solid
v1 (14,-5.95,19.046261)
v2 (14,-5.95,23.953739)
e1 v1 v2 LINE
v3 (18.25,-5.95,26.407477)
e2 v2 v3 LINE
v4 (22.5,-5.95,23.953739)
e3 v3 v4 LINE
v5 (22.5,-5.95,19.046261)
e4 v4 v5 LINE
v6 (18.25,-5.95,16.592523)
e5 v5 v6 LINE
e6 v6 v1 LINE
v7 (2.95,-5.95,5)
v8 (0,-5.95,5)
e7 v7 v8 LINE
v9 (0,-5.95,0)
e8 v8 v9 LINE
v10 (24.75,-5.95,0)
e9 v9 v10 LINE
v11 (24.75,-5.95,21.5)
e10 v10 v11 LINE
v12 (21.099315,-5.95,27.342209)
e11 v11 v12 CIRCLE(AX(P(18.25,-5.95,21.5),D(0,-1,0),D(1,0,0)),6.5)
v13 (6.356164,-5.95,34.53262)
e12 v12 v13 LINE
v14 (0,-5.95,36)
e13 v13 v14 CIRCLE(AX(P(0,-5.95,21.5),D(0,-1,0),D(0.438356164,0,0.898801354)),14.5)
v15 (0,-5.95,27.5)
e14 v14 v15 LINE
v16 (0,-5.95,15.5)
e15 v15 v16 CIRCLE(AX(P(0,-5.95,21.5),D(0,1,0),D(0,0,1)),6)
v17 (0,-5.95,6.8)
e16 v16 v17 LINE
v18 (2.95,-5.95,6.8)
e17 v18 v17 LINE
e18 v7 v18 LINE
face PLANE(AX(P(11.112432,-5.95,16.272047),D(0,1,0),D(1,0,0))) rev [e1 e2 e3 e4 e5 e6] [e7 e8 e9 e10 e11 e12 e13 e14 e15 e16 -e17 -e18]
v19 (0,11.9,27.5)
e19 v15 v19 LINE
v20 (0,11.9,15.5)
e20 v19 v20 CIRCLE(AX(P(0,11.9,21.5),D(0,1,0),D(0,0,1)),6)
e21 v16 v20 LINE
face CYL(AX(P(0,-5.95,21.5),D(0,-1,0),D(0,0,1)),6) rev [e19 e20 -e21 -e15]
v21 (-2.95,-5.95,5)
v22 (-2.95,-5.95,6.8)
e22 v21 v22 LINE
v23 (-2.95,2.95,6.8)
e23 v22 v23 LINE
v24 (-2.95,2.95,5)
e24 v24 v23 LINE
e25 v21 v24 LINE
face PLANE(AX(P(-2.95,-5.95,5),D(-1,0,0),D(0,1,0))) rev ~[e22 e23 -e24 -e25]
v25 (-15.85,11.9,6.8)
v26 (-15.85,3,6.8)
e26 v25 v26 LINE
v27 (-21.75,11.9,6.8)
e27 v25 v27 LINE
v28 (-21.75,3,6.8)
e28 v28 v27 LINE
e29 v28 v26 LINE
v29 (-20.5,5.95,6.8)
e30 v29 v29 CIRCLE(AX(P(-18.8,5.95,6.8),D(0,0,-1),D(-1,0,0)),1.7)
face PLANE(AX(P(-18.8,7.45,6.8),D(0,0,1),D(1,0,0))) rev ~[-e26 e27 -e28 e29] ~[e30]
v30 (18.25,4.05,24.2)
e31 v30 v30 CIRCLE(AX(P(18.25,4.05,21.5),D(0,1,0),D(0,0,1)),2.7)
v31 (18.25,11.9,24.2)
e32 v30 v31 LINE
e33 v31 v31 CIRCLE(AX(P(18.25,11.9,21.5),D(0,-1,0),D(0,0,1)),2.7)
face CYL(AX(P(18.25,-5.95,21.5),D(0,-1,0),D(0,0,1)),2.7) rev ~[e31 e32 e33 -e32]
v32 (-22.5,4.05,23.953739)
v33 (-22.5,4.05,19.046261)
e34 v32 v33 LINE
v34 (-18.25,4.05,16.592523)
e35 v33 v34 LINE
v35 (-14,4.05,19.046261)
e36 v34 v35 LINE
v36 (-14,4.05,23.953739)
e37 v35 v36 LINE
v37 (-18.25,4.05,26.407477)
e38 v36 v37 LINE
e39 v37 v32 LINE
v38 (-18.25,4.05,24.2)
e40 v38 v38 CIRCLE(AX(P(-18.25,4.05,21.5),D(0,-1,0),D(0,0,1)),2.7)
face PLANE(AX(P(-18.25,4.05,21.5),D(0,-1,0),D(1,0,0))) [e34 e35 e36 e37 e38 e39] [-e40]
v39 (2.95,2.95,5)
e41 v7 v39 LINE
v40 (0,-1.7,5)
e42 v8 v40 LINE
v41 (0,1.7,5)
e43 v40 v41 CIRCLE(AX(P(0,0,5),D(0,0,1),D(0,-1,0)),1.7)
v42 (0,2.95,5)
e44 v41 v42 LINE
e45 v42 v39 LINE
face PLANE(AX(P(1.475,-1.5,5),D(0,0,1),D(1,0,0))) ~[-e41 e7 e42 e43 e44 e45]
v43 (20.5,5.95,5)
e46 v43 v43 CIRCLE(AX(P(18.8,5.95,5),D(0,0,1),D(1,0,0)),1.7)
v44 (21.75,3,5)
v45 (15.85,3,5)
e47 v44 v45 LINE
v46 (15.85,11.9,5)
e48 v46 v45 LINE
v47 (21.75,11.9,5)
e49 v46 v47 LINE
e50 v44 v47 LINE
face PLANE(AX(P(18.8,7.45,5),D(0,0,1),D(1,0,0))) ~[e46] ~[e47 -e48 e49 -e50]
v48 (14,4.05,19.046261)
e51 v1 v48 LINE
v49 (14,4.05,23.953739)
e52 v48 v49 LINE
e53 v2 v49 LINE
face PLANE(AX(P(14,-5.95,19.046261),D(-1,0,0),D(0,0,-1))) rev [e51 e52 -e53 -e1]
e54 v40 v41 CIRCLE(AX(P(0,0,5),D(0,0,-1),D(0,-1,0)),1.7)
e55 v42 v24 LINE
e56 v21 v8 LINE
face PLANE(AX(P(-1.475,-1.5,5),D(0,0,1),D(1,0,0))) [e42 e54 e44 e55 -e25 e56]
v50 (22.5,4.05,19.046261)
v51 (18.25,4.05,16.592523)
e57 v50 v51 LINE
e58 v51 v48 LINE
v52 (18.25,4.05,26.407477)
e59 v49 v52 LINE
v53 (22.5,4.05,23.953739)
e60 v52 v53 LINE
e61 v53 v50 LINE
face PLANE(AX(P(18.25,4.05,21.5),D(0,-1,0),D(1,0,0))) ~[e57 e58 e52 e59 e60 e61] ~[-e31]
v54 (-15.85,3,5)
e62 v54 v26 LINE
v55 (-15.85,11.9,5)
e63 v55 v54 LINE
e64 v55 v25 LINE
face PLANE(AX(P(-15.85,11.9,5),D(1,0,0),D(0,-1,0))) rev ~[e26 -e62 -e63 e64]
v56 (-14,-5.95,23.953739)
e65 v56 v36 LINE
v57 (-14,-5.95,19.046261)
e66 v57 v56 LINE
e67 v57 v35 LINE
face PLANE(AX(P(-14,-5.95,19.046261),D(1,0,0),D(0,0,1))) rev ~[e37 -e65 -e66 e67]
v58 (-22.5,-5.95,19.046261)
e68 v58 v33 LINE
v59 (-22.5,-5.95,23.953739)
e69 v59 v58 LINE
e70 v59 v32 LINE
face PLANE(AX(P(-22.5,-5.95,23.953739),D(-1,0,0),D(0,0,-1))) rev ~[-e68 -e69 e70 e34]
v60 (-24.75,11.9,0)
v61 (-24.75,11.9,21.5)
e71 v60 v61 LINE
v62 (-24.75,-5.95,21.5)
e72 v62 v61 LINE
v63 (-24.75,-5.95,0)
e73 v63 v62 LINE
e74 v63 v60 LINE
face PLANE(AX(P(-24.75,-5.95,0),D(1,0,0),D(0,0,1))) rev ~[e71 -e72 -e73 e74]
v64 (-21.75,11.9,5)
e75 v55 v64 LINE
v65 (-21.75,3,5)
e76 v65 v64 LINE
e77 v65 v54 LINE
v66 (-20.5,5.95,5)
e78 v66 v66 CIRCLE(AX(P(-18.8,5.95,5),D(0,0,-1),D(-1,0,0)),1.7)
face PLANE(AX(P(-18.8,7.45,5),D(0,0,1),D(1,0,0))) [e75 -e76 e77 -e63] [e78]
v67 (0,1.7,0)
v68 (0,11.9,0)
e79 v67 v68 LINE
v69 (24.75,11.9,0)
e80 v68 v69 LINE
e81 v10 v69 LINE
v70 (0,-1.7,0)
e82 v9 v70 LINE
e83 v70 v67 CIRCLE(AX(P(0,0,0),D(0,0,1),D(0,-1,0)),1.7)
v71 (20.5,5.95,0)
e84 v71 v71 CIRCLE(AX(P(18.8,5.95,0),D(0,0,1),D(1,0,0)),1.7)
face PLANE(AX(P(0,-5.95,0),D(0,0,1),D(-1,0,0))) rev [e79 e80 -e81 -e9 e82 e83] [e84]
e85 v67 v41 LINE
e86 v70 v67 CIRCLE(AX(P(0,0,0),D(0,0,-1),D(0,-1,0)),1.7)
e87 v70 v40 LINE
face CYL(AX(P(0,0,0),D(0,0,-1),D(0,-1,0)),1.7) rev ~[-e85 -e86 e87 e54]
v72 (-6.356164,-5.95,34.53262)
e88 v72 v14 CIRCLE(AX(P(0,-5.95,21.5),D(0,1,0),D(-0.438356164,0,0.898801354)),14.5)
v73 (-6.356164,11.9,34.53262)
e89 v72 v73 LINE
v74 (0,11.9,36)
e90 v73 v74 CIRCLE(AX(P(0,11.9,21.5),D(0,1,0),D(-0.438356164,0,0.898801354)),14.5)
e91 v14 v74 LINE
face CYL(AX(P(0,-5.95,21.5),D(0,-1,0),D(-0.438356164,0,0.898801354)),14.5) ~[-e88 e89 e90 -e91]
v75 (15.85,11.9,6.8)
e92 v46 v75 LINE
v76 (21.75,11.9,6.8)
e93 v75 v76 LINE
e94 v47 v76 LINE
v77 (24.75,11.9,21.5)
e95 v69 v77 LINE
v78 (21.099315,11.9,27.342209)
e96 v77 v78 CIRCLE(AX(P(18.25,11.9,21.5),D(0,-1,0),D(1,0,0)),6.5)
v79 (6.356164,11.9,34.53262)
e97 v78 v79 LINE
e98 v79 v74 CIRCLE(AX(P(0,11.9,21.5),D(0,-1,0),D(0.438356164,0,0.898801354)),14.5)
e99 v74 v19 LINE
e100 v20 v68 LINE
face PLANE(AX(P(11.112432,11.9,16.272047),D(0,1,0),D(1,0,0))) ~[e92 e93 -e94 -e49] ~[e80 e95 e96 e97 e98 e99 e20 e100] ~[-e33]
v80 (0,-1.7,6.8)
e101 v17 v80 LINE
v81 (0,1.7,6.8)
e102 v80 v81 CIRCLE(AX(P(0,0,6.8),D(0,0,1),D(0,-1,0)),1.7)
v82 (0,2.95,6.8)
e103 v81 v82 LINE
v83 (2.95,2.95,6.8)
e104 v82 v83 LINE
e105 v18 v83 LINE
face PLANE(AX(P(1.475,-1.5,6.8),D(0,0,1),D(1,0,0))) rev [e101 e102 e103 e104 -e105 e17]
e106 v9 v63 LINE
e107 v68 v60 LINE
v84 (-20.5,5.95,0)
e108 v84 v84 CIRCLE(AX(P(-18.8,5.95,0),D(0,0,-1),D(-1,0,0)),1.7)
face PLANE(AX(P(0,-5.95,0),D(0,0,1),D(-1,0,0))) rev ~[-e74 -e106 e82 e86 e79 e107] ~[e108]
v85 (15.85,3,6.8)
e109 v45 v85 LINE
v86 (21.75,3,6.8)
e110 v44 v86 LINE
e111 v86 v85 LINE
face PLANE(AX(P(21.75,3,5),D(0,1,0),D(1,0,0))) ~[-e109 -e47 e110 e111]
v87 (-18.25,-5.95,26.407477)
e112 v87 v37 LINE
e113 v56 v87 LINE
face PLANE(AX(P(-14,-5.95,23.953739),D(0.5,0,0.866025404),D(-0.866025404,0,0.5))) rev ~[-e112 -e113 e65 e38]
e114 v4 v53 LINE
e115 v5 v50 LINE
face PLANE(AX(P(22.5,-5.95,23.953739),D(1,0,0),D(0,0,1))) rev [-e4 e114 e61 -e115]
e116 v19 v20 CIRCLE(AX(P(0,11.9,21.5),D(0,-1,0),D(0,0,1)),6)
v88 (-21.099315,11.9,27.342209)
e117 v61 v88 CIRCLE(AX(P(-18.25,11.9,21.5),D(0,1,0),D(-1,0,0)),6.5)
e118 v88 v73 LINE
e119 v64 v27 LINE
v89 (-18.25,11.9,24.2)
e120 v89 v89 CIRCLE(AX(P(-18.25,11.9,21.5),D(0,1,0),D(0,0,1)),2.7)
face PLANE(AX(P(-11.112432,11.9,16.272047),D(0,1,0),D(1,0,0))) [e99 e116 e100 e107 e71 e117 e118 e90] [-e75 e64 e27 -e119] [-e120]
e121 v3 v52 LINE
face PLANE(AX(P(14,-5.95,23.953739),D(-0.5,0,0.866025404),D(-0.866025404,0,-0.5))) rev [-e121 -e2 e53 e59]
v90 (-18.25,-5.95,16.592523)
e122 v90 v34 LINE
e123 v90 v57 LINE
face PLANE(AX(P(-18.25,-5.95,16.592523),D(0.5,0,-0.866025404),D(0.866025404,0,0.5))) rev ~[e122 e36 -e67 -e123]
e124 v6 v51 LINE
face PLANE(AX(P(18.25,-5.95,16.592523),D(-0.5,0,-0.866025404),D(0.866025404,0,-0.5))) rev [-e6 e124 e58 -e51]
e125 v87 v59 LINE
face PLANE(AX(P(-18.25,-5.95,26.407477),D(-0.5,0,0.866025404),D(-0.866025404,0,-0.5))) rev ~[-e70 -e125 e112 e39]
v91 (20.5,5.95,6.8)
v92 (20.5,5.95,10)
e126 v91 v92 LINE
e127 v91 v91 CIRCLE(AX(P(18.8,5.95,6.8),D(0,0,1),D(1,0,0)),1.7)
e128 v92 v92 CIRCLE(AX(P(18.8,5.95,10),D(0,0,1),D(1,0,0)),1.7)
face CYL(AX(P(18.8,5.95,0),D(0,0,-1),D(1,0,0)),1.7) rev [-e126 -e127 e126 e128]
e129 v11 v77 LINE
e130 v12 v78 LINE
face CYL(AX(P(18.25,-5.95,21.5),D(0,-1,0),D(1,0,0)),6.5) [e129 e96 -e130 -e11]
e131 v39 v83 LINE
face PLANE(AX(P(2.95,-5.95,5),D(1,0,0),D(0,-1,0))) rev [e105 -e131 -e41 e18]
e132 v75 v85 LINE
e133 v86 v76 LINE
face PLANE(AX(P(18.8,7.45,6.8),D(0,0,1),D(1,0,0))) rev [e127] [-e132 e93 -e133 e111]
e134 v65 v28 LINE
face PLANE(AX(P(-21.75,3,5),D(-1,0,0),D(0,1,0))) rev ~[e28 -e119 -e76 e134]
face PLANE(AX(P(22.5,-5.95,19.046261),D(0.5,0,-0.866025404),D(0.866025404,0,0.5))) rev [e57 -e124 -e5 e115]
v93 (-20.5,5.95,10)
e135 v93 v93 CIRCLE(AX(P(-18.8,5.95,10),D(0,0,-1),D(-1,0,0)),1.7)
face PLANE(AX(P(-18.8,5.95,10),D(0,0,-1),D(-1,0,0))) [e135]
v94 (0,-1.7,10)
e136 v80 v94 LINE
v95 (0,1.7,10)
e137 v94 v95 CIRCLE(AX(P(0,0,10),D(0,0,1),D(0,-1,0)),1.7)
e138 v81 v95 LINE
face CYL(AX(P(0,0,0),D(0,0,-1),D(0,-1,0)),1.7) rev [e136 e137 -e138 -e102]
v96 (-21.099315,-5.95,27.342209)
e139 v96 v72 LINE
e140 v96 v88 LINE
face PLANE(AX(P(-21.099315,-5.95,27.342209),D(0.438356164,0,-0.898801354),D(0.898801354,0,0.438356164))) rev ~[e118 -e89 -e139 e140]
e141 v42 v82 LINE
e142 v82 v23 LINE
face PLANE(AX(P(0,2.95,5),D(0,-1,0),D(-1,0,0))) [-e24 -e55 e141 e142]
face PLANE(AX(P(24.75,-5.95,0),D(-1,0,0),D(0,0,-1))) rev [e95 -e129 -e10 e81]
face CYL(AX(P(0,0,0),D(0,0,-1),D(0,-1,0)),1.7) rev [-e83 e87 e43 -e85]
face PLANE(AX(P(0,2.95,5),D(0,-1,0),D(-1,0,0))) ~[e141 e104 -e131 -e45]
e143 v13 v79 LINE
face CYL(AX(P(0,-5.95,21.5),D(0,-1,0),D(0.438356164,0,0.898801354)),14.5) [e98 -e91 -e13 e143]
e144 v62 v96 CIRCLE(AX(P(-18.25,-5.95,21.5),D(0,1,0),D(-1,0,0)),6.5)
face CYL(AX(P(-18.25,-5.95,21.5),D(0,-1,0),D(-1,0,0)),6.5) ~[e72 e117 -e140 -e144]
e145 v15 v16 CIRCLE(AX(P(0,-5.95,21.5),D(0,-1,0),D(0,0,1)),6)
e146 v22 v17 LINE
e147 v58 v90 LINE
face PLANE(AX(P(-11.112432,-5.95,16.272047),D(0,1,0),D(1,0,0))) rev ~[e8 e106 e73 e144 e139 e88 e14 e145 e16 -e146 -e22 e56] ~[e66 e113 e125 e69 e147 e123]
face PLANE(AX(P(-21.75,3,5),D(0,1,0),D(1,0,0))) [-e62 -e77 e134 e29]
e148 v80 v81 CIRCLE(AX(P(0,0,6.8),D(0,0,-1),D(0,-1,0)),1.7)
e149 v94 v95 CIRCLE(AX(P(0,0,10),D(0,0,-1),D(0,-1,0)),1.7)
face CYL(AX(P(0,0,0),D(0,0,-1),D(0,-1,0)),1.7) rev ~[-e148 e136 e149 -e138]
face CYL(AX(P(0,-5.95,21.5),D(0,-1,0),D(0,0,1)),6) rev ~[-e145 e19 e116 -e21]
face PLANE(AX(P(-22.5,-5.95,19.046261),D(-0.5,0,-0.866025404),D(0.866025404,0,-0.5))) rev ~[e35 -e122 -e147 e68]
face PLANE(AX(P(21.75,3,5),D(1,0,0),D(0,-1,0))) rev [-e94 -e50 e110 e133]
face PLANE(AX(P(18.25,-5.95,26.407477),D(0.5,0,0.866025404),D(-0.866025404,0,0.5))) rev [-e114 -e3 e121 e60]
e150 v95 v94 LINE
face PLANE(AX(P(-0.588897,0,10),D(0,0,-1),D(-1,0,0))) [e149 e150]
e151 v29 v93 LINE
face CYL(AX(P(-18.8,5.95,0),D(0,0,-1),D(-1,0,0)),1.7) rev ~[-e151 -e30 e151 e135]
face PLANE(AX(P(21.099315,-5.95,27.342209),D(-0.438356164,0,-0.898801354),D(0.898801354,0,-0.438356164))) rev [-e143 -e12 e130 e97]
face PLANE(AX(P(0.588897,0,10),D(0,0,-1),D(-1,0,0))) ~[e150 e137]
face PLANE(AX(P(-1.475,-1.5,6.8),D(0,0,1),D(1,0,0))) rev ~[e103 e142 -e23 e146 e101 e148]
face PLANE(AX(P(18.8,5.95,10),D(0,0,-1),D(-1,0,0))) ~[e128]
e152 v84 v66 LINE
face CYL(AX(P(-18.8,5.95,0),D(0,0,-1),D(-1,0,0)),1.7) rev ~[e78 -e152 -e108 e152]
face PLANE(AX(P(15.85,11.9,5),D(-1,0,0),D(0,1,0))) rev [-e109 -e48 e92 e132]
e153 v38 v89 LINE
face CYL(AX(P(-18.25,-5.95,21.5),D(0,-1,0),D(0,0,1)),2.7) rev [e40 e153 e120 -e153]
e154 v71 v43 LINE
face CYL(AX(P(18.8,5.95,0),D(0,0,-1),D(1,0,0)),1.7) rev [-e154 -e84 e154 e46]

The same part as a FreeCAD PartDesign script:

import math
import FreeCAD as App
import Part
import Sketcher

V = App.Vector
Q = App.Units.Quantity

doc = App.newDocument("Part")
body = doc.addObject("PartDesign::Body", "Body")

# Sketch on XZ plane
sketch1 = body.newObject("Sketcher::SketchObject", "Sketch")
sketch1.AttachmentSupport = (doc.getObject("XZ_Plane"), [""])
sketch1.MapMode = "FlatFace"
sketch1.addGeometry([
    Part.LineSegment(V(-24.8, 0, 0), V(-24.8, 21.5, 0)),  # 0
    Part.ArcOfCircle(Part.Circle(V(-18.3, 21.5, 0), V(0, 0, 1), 6.5), math.radians(116), math.radians(180)),  # 1
    Part.LineSegment(V(-21.1, 27.3, 0), V(-6.4, 34.5, 0)),  # 2
    Part.ArcOfCircle(Part.Circle(V(0, 21.5, 0), V(0, 0, 1), 14.5), math.radians(90), math.radians(116)),  # 3
    Part.LineSegment(V(0, 36, 0), V(0, 27.5, 0)),  # 4
    Part.ArcOfCircle(Part.Circle(V(0, 21.5, 0), V(0, 0, 1), 6), math.radians(90), math.radians(270)),  # 5
    Part.LineSegment(V(0, 15.5, 0), V(0, 0, 0)),  # 6
    Part.LineSegment(V(0, 0, 0), V(-24.8, 0, 0)),  # 7
    Part.Circle(V(-18.2, 21.5, 0), V(0, 0, 1), 2.7),  # 8
], False)
sketch1.addConstraint([
    Sketcher.Constraint("Tangent", 0, 2, 1, 2),
    Sketcher.Constraint("Tangent", 1, 1, 2, 1),
    Sketcher.Constraint("Tangent", 2, 2, 3, 2),
    Sketcher.Constraint("Coincident", 3, 1, 4, 1),
    Sketcher.Constraint("Coincident", 4, 2, 5, 1),
    Sketcher.Constraint("Coincident", 5, 2, 6, 1),
    Sketcher.Constraint("Coincident", 6, 2, 7, 1),
    Sketcher.Constraint("Coincident", 7, 2, 0, 1),
    Sketcher.Constraint("Vertical", 0),
    Sketcher.Constraint("Vertical", 4),
    Sketcher.Constraint("Vertical", 6),
    Sketcher.Constraint("Horizontal", 7),
    Sketcher.Constraint("Coincident", 6, 2, -1, 1),
    Sketcher.Constraint("Coincident", 5, 3, 3, 3),
    Sketcher.Constraint("Coincident", 8, 3, 1, 3),
    Sketcher.Constraint("PointOnObject", 3, 3, -2),
    Sketcher.Constraint("PointOnObject", 3, 1, -2),
    Sketcher.Constraint("Horizontal", 1, 3, 3, 3),
    Sketcher.Constraint("Radius", 5, 6.0),
    Sketcher.Constraint("Diameter", 8, 5.4),
    Sketcher.Constraint("Radius", 1, 6.5),
    Sketcher.Constraint("Radius", 3, 14.5),
    Sketcher.Constraint("DistanceY", 0, 1, 0, 2, 21.5),
    Sketcher.Constraint("DistanceX", 7, 2, 7, 1, 24.75),
])
pad1 = body.newObject("PartDesign::Pad", "Pad")
pad1.Profile = sketch1
pad1.Type = "TwoLengths"
pad1.Length = 11.9
pad1.Length2 = 5.95
pad1.Reversed = True

# Sketch on XY plane
sketch2 = body.newObject("Sketcher::SketchObject", "Sketch001")
sketch2.AttachmentSupport = (doc.getObject("XY_Plane"), [""])
sketch2.MapMode = "FlatFace"
sketch2.addGeometry([
    Part.Circle(V(-18.8, 6, 0), V(0, 0, 1), 1.7),
    Part.LineSegment(V(0, 1.7, 0), V(0, -1.7, 0)),
    Part.ArcOfCircle(Part.Circle(V(0, 0, 0), V(0, 0, 1), 1.7), math.radians(90), math.radians(270)),
], False)
sketch2.addConstraint([
    Sketcher.Constraint("Coincident", 1, 1, 2, 1),
    Sketcher.Constraint("Coincident", 2, 2, 1, 2),
    Sketcher.Constraint("Vertical", 1),
    Sketcher.Constraint("Coincident", 2, 3, -1, 1),
    Sketcher.Constraint("Equal", 0, 2),
    Sketcher.Constraint("PointOnObject", 1, 1, -2),
    Sketcher.Constraint("Diameter", 0, 3.4),
    Sketcher.Constraint("DistanceX", 0, 3, -1, 1, 18.8),
    Sketcher.Constraint("DistanceY", -1, 1, 0, 3, 5.95),
])
pocket1 = body.newObject("PartDesign::Pocket", "Pocket")
pocket1.Profile = sketch2
pocket1.Length = 10
pocket1.Reversed = True

# Sketch on XY plane
sketch3 = body.newObject("Sketcher::SketchObject", "Sketch002")
sketch3.AttachmentSupport = (doc.getObject("XY_Plane"), [""])
sketch3.MapMode = "FlatFace"
sketch3.AttachmentOffset = App.Placement(V(0, 0, 5), App.Rotation())
sketch3.addGeometry([
    Part.LineSegment(V(-15.8, 11.9, 0), V(-15.8, 3, 0)),  # 0
    Part.LineSegment(V(-15.8, 3, 0), V(-21.8, 3, 0)),  # 1
    Part.LineSegment(V(-21.8, 3, 0), V(-21.8, 11.9, 0)),  # 2
    Part.LineSegment(V(-21.8, 11.9, 0), V(-15.8, 11.9, 0)),  # 3
    Part.LineSegment(V(-3, 3, 0), V(0, 3, 0)),  # 4
    Part.LineSegment(V(0, 3, 0), V(0, -6, 0)),  # 5
    Part.LineSegment(V(0, -6, 0), V(-3, -6, 0)),  # 6
    Part.LineSegment(V(-3, -6, 0), V(-3, 3, 0)),  # 7
], False)
sketch3.addConstraint([
    Sketcher.Constraint("Coincident", 0, 2, 1, 1),
    Sketcher.Constraint("Coincident", 1, 2, 2, 1),
    Sketcher.Constraint("Coincident", 2, 2, 3, 1),
    Sketcher.Constraint("Coincident", 3, 2, 0, 1),
    Sketcher.Constraint("Coincident", 4, 2, 5, 1),
    Sketcher.Constraint("Coincident", 5, 2, 6, 1),
    Sketcher.Constraint("Coincident", 6, 2, 7, 1),
    Sketcher.Constraint("Coincident", 7, 2, 4, 1),
    Sketcher.Constraint("Vertical", 0),
    Sketcher.Constraint("Horizontal", 1),
    Sketcher.Constraint("Vertical", 2),
    Sketcher.Constraint("Horizontal", 3),
    Sketcher.Constraint("Horizontal", 4),
    Sketcher.Constraint("Vertical", 5),
    Sketcher.Constraint("Horizontal", 6),
    Sketcher.Constraint("Vertical", 7),
    Sketcher.Constraint("PointOnObject", 4, 2, -2),
    Sketcher.Constraint("Equal", 2, 5),
    Sketcher.Constraint("DistanceX", 1, 2, 1, 1, 5.9),
    Sketcher.Constraint("DistanceY", 0, 2, 0, 1, 8.9),
    Sketcher.Constraint("DistanceY", -1, 1, 0, 2, 3.0),
    Sketcher.Constraint("DistanceX", 4, 1, 4, 2, 2.95),
    Sketcher.Constraint("DistanceX", 0, 2, 6, 2, 12.9),
    Sketcher.Constraint("DistanceY", -1, 1, 4, 2, 2.95),
])
pocket2 = body.newObject("PartDesign::Pocket", "Pocket001")
pocket2.Profile = sketch3
pocket2.Length = 1.8
pocket2.Reversed = True

# Sketch on XZ plane
sketch4 = body.newObject("Sketcher::SketchObject", "Sketch003")
sketch4.AttachmentSupport = (doc.getObject("XZ_Plane"), [""])
sketch4.MapMode = "FlatFace"
sketch4.AttachmentOffset = App.Placement(V(0, 0, 5.95), App.Rotation())
sketch4.addGeometry([
    Part.LineSegment(V(-14, 24, 0), V(-18.2, 26.4, 0)),  # 0
    Part.LineSegment(V(-18.2, 26.4, 0), V(-22.5, 24, 0)),  # 1
    Part.LineSegment(V(-22.5, 24, 0), V(-22.5, 19, 0)),  # 2
    Part.LineSegment(V(-22.5, 19, 0), V(-18.2, 16.6, 0)),  # 3
    Part.LineSegment(V(-18.2, 16.6, 0), V(-14, 19, 0)),  # 4
    Part.LineSegment(V(-14, 19, 0), V(-14, 24, 0)),  # 5
], False)
sketch4.addConstraint([
    Sketcher.Constraint("Coincident", 0, 2, 1, 1),
    Sketcher.Constraint("Coincident", 1, 2, 2, 1),
    Sketcher.Constraint("Coincident", 2, 2, 3, 1),
    Sketcher.Constraint("Coincident", 3, 2, 4, 1),
    Sketcher.Constraint("Coincident", 4, 2, 5, 1),
    Sketcher.Constraint("Coincident", 5, 2, 0, 1),
    Sketcher.Constraint("Vertical", 2),
    Sketcher.Constraint("Vertical", 5),
    Sketcher.Constraint("Parallel", 0, 3),
    Sketcher.Constraint("Parallel", 1, 4),
    Sketcher.Constraint("Horizontal", 2, 2, 4, 2),
    Sketcher.Constraint("Horizontal", 1, 2, 5, 2),
    Sketcher.Constraint("Vertical", 0, 2, 3, 2),
    Sketcher.Constraint("Angle", 0, Q("150 deg")),
    Sketcher.Constraint("DistanceX", 4, 2, -1, 1, 14.0),
    Sketcher.Constraint("DistanceX", 1, 2, -1, 1, 22.5),
    Sketcher.Constraint("DistanceY", 2, 2, 2, 1, 4.907477),
    Sketcher.Constraint("DistanceY", -1, 1, 1, 2, 23.953739),
])
pocket3 = body.newObject("PartDesign::Pocket", "Pocket002")
pocket3.Profile = sketch4
pocket3.Length = 10
body2 = doc.addObject("PartDesign::Body", "Body001")
doc.recompute()

body2.BaseFeature = body
doc.recompute()

mirroring = doc.addObject("Part::Mirroring", "Mirroring")
mirroring.Source = body
mirroring.Base = V(0, -5.95, 0)
mirroring.Normal = V(1, 0, 0)
body3 = doc.addObject("PartDesign::Body", "Body002")
body3.BaseFeature = mirroring
boolean = body2.newObject("PartDesign::Boolean", "Boolean")
boolean.Type = "Fuse"
boolean.addObjects([body3])
doc.recompute()
mirroring.Visibility = False

doc.recompute()
